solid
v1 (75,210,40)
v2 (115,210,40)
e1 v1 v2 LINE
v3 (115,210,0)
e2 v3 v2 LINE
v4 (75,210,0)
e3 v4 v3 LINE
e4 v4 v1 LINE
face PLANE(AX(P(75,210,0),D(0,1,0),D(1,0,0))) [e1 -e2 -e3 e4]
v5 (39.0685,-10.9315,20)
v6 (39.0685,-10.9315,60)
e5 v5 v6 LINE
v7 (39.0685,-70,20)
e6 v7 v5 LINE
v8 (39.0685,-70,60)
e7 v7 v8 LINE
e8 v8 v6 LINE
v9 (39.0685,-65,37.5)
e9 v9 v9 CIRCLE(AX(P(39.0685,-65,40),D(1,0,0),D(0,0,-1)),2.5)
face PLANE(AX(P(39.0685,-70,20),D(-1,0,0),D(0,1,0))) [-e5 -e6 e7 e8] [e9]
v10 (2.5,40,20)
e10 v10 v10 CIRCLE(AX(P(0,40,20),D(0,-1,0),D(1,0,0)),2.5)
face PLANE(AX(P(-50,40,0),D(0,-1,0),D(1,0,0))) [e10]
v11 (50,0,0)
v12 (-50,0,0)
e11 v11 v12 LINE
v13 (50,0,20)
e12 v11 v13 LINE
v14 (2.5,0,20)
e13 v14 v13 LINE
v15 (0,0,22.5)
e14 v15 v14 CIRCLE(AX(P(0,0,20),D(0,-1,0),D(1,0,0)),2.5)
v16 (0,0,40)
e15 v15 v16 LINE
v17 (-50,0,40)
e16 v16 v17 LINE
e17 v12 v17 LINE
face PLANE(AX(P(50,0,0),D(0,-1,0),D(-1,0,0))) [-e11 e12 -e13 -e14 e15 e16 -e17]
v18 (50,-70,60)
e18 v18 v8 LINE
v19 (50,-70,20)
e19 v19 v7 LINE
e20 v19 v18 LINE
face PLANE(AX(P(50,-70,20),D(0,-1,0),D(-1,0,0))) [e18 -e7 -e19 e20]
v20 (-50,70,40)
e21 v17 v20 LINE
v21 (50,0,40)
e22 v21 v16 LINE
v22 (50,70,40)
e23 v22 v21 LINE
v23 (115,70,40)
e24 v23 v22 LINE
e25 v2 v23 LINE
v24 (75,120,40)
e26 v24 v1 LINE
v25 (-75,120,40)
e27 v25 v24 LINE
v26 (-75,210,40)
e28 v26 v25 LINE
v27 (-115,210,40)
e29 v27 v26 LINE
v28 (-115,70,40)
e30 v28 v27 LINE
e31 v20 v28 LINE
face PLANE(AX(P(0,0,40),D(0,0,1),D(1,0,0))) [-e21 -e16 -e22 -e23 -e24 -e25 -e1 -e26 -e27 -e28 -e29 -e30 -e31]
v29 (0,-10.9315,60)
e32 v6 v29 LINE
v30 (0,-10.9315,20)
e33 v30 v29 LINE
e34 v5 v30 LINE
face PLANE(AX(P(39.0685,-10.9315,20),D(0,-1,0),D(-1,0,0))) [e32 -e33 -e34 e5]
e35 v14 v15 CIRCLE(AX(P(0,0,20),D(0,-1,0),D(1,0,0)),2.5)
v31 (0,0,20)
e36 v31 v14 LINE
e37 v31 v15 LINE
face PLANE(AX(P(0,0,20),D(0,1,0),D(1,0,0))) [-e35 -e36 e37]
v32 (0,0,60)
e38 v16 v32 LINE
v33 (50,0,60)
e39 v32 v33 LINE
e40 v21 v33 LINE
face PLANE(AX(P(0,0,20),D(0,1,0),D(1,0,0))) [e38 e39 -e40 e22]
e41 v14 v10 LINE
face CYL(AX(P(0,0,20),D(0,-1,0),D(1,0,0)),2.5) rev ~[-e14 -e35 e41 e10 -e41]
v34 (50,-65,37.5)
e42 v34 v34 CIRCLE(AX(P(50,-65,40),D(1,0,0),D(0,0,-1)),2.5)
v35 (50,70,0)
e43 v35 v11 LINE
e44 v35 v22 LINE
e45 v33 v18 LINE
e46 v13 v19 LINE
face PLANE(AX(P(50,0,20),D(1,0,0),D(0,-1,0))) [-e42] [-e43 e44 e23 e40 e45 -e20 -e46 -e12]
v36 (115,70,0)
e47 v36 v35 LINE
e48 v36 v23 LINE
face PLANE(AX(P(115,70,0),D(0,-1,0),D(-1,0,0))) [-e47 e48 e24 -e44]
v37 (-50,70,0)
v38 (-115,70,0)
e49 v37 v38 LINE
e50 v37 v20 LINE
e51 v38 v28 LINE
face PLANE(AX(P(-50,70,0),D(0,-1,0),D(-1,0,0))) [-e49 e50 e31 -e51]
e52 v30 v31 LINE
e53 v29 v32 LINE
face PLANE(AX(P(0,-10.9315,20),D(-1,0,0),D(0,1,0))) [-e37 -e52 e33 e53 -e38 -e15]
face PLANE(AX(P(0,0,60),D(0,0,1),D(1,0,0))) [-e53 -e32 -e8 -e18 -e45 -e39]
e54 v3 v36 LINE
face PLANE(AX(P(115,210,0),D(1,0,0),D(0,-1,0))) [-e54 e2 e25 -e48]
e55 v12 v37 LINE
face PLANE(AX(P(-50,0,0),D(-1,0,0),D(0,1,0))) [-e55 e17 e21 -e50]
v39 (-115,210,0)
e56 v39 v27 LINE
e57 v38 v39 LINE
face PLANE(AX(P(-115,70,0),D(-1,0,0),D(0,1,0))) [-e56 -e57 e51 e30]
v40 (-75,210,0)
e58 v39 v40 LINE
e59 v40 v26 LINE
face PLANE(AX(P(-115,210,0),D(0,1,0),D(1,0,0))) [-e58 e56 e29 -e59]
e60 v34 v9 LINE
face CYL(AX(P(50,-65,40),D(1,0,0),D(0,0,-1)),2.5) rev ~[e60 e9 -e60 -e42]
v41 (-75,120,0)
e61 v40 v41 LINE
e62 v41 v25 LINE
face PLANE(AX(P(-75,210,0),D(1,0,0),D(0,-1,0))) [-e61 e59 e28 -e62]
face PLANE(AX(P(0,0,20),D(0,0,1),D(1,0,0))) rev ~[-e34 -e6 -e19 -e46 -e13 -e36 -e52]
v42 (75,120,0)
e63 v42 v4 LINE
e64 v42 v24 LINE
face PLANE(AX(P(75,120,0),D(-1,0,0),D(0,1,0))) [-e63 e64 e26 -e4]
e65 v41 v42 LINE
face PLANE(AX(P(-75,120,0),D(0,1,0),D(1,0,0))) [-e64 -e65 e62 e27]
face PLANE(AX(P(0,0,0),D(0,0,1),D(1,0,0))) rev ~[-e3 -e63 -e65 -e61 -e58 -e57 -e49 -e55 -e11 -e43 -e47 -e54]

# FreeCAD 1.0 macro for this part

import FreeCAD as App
import Part
import Sketcher

V = App.Vector

doc = App.newDocument("Part")
body = doc.addObject("PartDesign::Body", "Body")

# Sketch on XY plane
sketch1 = doc.addObject("Sketcher::SketchObject", "Sketch")
body.addObject(sketch1)
sketch1.AttachmentSupport = (doc.XY_Plane, [""])
sketch1.MapMode = "FlatFace"
sketch1.addGeometry(Part.LineSegment(V(-50, 70, 0), V(-50, 0, 0)), False)
sketch1.addGeometry(Part.LineSegment(V(-50, 0, 0), V(50, 0, 0)), False)
sketch1.addGeometry(Part.LineSegment(V(50, 0, 0), V(50, 70, 0)), False)
sketch1.addGeometry(Part.LineSegment(V(50, 70, 0), V(115, 70, 0)), False)
sketch1.addGeometry(Part.LineSegment(V(115, 70, 0), V(115, 210, 0)), False)
sketch1.addGeometry(Part.LineSegment(V(115, 210, 0), V(75, 210, 0)), False)
sketch1.addGeometry(Part.LineSegment(V(75, 210, 0), V(75, 120, 0)), False)
sketch1.addGeometry(Part.LineSegment(V(75, 120, 0), V(-75, 120, 0)), False)
sketch1.addGeometry(Part.LineSegment(V(-75, 120, 0), V(-75, 210, 0)), False)
sketch1.addGeometry(Part.LineSegment(V(-75, 210, 0), V(-115, 210, 0)), False)
sketch1.addGeometry(Part.LineSegment(V(-115, 210, 0), V(-115, 70, 0)), False)
sketch1.addGeometry(Part.LineSegment(V(-115, 70, 0), V(-50, 70, 0)), False)
sketch1.addConstraint(Sketcher.Constraint("Coincident", 0, 2, 1, 1))
sketch1.addConstraint(Sketcher.Constraint("Coincident", 1, 2, 2, 1))
sketch1.addConstraint(Sketcher.Constraint("Coincident", 2, 2, 3, 1))
sketch1.addConstraint(Sketcher.Constraint("Coincident", 3, 2, 4, 1))
sketch1.addConstraint(Sketcher.Constraint("Coincident", 4, 2, 5, 1))
sketch1.addConstraint(Sketcher.Constraint("Coincident", 5, 2, 6, 1))
sketch1.addConstraint(Sketcher.Constraint("Coincident", 6, 2, 7, 1))
sketch1.addConstraint(Sketcher.Constraint("Coincident", 7, 2, 8, 1))
sketch1.addConstraint(Sketcher.Constraint("Coincident", 8, 2, 9, 1))
sketch1.addConstraint(Sketcher.Constraint("Coincident", 9, 2, 10, 1))
sketch1.addConstraint(Sketcher.Constraint("Coincident", 10, 2, 11, 1))
sketch1.addConstraint(Sketcher.Constraint("Coincident", 11, 2, 0, 1))
sketch1.addConstraint(Sketcher.Constraint("Vertical", 0))
sketch1.addConstraint(Sketcher.Constraint("Horizontal", 1))
sketch1.addConstraint(Sketcher.Constraint("Vertical", 2))
sketch1.addConstraint(Sketcher.Constraint("Horizontal", 3))
sketch1.addConstraint(Sketcher.Constraint("Vertical", 4))
sketch1.addConstraint(Sketcher.Constraint("Horizontal", 5))
sketch1.addConstraint(Sketcher.Constraint("Vertical", 6))
sketch1.addConstraint(Sketcher.Constraint("Horizontal", 7))
sketch1.addConstraint(Sketcher.Constraint("Vertical", 8))
sketch1.addConstraint(Sketcher.Constraint("Horizontal", 9))
sketch1.addConstraint(Sketcher.Constraint("Vertical", 10))
sketch1.addConstraint(Sketcher.Constraint("Horizontal", 11))
sketch1.addConstraint(Sketcher.Constraint("Symmetric", 0, 2, 1, 2, -1, 1))
sketch1.addConstraint(Sketcher.Constraint("Symmetric", 5, 2, 8, 2, -2))
sketch1.addConstraint(Sketcher.Constraint("Symmetric", 3, 2, 10, 2, -2))
sketch1.addConstraint(Sketcher.Constraint("DistanceX", 1, 1, 1, 2, 100.0))
sketch1.addConstraint(Sketcher.Constraint("DistanceX", 5, 2, 5, 1, 40.0))
sketch1.addConstraint(Sketcher.Constraint("DistanceX", 7, 2, 7, 1, 150.0))
sketch1.addConstraint(Sketcher.Constraint("DistanceY", 0, 2, 0, 1, 70.0))
sketch1.addConstraint(Sketcher.Constraint("DistanceY", 4, 1, 4, 2, 140.0))
sketch1.addConstraint(Sketcher.Constraint("DistanceY", 6, 2, 6, 1, 90.0))
pad1 = doc.addObject("PartDesign::Pad", "Pad")
body.addObject(pad1)
pad1.Profile = sketch1
pad1.Length = 40

# Sketch on XZ plane
sketch2 = doc.addObject("Sketcher::SketchObject", "Sketch001")
body.addObject(sketch2)
sketch2.AttachmentSupport = (doc.XZ_Plane, [""])
sketch2.MapMode = "FlatFace"
sketch2.addGeometry(Part.Circle(V(0, 20, 0), V(0, 0, 1), 2.5), False)
sketch2.addConstraint(Sketcher.Constraint("PointOnObject", 0, 3, -2))
sketch2.addConstraint(Sketcher.Constraint("Diameter", 0, 5.0))
sketch2.addConstraint(Sketcher.Constraint("DistanceY", -1, 1, 0, 3, 20.0))
pocket1 = doc.addObject("PartDesign::Pocket", "Pocket")
body.addObject(pocket1)
pocket1.Profile = sketch2
pocket1.Length = 40

# Sketch on XY plane
sketch3 = doc.addObject("Sketcher::SketchObject", "Sketch002")
body.addObject(sketch3)
sketch3.AttachmentSupport = (doc.XY_Plane, [""])
sketch3.MapMode = "FlatFace"
sketch3.AttachmentOffset = App.Placement(V(0, 0, 20), App.Rotation())
sketch3.addGeometry(Part.LineSegment(V(50, 0, 0), V(0, 0, 0)), False)
sketch3.addGeometry(Part.LineSegment(V(0, 0, 0), V(0, -10.9315, 0)), False)
sketch3.addGeometry(Part.LineSegment(V(0, -10.9315, 0), V(39.0685, -10.9315, 0)), False)
sketch3.addGeometry(Part.LineSegment(V(39.0685, -10.9315, 0), V(39.0685, -70, 0)), False)
sketch3.addGeometry(Part.LineSegment(V(39.0685, -70, 0), V(50, -70, 0)), False)
sketch3.addGeometry(Part.LineSegment(V(50, -70, 0), V(50, 0, 0)), False)
sketch3.addConstraint(Sketcher.Constraint("Coincident", 0, 2, 1, 1))
sketch3.addConstraint(Sketcher.Constraint("Coincident", 1, 2, 2, 1))
sketch3.addConstraint(Sketcher.Constraint("Coincident", 2, 2, 3, 1))
sketch3.addConstraint(Sketcher.Constraint("Coincident", 3, 2, 4, 1))
sketch3.addConstraint(Sketcher.Constraint("Coincident", 4, 2, 5, 1))
sketch3.addConstraint(Sketcher.Constraint("Coincident", 5, 2, 0, 1))
sketch3.addConstraint(Sketcher.Constraint("Horizontal", 0))
sketch3.addConstraint(Sketcher.Constraint("Vertical", 1))
sketch3.addConstraint(Sketcher.Constraint("Horizontal", 2))
sketch3.addConstraint(Sketcher.Constraint("Vertical", 3))
sketch3.addConstraint(Sketcher.Constraint("Horizontal", 4))
sketch3.addConstraint(Sketcher.Constraint("Vertical", 5))
sketch3.addConstraint(Sketcher.Constraint("Coincident", 0, 2, -1, 1))
sketch3.addConstraint(Sketcher.Constraint("Equal", 4, 1))
sketch3.addConstraint(Sketcher.Constraint("DistanceY", 5, 1, 5, 2, 70.0))
sketch3.addConstraint(Sketcher.Constraint("DistanceX", 0, 2, 0, 1, 50.0))
sketch3.addConstraint(Sketcher.Constraint("DistanceX", 2, 1, 2, 2, 39.0685))
pad2 = doc.addObject("PartDesign::Pad", "Pad001")
body.addObject(pad2)
pad2.Profile = sketch3
pad2.Length = 40

# Sketch on YZ plane
sketch4 = doc.addObject("Sketcher::SketchObject", "Sketch003")
body.addObject(sketch4)
sketch4.AttachmentSupport = (doc.YZ_Plane, [""])
sketch4.MapMode = "FlatFace"
sketch4.AttachmentOffset = App.Placement(V(0, 0, 50), App.Rotation())
sketch4.addGeometry(Part.Circle(V(-65, 40, 0), V(0, 0, 1), 2.5), False)
sketch4.addConstraint(Sketcher.Constraint("Diameter", 0, 5.0))
sketch4.addConstraint(Sketcher.Constraint("DistanceX", 0, 3, -1, 1, 65.0))
sketch4.addConstraint(Sketcher.Constraint("DistanceY", -1, 1, 0, 3, 40.0))
pocket2 = doc.addObject("PartDesign::Pocket", "Pocket001")
body.addObject(pocket2)
pocket2.Profile = sketch4
pocket2.Length = 40

doc.recompute()
